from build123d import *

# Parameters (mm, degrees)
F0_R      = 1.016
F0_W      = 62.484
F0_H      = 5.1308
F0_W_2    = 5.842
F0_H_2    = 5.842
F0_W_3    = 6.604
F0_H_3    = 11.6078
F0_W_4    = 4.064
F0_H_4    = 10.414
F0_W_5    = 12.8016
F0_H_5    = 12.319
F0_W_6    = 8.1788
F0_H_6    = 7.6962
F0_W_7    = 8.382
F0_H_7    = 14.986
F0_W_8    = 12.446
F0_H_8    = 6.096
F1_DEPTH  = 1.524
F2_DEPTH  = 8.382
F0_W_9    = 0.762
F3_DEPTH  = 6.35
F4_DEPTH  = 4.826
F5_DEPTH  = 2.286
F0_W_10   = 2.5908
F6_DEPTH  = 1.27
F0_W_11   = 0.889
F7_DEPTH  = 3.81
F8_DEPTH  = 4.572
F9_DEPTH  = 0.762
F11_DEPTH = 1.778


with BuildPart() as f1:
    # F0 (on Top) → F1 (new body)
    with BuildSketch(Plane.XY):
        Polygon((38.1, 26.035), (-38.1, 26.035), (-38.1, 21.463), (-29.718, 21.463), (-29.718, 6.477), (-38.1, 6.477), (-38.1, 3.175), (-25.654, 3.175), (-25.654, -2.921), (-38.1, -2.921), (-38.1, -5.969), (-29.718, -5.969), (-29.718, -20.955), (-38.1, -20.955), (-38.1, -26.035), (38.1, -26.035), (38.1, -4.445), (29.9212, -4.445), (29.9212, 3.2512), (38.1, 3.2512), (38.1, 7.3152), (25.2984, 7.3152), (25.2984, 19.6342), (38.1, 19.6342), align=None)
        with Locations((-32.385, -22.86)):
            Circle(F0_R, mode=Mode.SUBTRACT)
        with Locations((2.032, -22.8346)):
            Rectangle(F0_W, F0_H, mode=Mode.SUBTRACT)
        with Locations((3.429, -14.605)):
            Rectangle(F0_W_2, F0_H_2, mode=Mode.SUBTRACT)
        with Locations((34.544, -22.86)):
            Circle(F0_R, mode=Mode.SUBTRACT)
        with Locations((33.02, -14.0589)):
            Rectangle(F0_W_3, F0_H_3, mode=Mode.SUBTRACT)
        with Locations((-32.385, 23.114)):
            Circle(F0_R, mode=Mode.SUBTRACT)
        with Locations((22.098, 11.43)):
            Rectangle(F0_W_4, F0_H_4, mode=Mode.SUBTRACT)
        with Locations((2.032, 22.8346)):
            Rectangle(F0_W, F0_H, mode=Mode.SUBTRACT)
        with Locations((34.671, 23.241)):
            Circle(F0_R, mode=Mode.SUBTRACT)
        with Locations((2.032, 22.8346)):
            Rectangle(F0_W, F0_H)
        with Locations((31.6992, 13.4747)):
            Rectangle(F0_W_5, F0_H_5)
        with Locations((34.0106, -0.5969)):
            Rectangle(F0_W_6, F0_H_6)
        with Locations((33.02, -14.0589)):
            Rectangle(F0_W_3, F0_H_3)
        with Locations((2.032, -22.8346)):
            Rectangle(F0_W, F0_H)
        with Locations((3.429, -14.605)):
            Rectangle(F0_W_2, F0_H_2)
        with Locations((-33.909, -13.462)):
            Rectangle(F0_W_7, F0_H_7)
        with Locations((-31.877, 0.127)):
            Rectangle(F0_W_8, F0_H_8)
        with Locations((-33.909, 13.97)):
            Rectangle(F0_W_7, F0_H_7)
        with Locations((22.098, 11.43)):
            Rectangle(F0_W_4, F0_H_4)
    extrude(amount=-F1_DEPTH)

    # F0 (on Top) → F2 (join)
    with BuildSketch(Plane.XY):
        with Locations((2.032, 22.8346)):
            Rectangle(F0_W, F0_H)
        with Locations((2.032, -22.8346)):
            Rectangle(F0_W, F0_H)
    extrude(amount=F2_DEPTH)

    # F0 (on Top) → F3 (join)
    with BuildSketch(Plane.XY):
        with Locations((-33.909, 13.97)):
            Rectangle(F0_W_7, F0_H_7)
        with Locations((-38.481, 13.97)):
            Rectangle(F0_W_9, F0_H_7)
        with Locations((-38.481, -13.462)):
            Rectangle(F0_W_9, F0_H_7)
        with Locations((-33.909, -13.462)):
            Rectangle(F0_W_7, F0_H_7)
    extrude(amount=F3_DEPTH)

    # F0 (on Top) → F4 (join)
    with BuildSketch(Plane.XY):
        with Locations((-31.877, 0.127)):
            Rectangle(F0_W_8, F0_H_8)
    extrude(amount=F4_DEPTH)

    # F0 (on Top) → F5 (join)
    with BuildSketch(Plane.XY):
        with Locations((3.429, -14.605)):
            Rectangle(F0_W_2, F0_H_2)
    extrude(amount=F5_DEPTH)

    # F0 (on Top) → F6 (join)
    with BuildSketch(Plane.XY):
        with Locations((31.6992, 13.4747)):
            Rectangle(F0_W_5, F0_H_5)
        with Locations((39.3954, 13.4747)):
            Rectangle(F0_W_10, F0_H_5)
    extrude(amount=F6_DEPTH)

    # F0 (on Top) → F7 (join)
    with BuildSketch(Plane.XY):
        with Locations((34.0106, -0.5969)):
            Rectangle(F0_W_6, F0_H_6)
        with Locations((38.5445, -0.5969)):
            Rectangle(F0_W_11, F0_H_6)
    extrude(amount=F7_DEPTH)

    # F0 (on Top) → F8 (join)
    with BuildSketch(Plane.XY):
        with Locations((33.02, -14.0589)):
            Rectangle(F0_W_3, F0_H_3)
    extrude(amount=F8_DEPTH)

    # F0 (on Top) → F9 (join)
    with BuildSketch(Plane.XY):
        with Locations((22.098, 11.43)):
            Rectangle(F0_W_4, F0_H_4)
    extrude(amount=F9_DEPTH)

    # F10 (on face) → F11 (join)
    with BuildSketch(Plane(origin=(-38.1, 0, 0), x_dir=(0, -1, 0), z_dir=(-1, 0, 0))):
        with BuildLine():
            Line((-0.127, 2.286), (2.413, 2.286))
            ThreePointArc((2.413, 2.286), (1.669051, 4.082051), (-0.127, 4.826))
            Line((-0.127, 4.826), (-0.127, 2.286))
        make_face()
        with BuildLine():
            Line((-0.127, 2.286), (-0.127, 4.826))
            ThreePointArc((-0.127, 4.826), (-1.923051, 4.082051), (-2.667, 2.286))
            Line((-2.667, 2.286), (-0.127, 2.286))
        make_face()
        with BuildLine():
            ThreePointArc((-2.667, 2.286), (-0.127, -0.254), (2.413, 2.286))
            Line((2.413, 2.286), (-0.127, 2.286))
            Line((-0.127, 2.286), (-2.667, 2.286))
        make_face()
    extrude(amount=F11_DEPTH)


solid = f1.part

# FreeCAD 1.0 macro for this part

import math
import FreeCAD as App
import Part
import Sketcher
Q = App.Units.Quantity

doc = App.newDocument("Part")
params = doc.addObject("Spreadsheet::Sheet", "Params")
for row, (alias, value) in enumerate([
    ("sketch1_diameter", "0.08 in"),
    ("sketch1_width", "3 in"),
    ("sketch1_height", "2.05 in"),
    ("pad1_length", "0.06 in"),
    ("sketch2_width", "2.46 in"),
    ("sketch2_height", "0.202 in"),
    ("pad2_length", "0.33 in"),
    ("sketch3_width", "0.36 in"),
    ("sketch3_height", "0.59 in"),
    ("pad3_length", "0.25 in"),
    ("sketch4_width", "0.49 in"),
    ("sketch4_height", "0.24 in"),
    ("pad4_length", "0.19 in"),
    ("sketch5_width", "0.23 in"),
    ("pad5_length", "0.09 in"),
    ("sketch6_width", "0.606 in"),
    ("sketch6_height", "0.485 in"),
    ("pad6_length", "0.05 in"),
    ("sketch7_width", "0.357 in"),
    ("sketch7_height", "0.303 in"),
    ("pad7_length", "0.15 in"),
    ("sketch8_width", "0.26 in"),
    ("sketch8_height", "0.457 in"),
    ("pad8_length", "0.18 in"),
    ("sketch9_width", "0.16 in"),
    ("sketch9_height", "0.41 in"),
    ("pad9_length", "0.03 in"),
    ("sketch10_radius", "0.1 in"),
    ("pad10_length", "0.07 in"),
], start=1):
    params.set(f"A{row}", alias)
    params.set(f"B{row}", "=" + value)
    params.setAlias(f"B{row}", alias)

body = doc.addObject("PartDesign::Body", "Body")

# Sketch on XY plane
sketch1 = body.newObject("Sketcher::SketchObject", "Sketch")
sketch1.AttachmentSupport = (doc.getObject("XY_Plane"), [""])
sketch1.MapMode = "FlatFace"
sketch1.addGeometry(Part.LineSegment(App.Vector(38.1, 26, 0), App.Vector(-38.1, 26, 0)), False)
sketch1.addGeometry(Part.LineSegment(App.Vector(-38.1, 26, 0), App.Vector(-38.1, -26, 0)), False)
sketch1.addGeometry(Part.LineSegment(App.Vector(-38.1, -26, 0), App.Vector(38.1, -26, 0)), False)
sketch1.addGeometry(Part.LineSegment(App.Vector(38.1, -26, 0), App.Vector(38.1, 26, 0)), False)
sketch1.addGeometry(Part.Circle(App.Vector(-32.4, -22.9, 0), App.Vector(0, 0, 1), 1), False)
sketch1.addGeometry(Part.Circle(App.Vector(34.5, -22.9, 0), App.Vector(0, 0, 1), 1), False)
sketch1.addGeometry(Part.Circle(App.Vector(-32.4, 23.1, 0), App.Vector(0, 0, 1), 1), False)
sketch1.addGeometry(Part.Circle(App.Vector(34.7, 23.2, 0), App.Vector(0, 0, 1), 1), False)
sketch1.addConstraint(Sketcher.Constraint("Coincident", 0, 2, 1, 1))
sketch1.addConstraint(Sketcher.Constraint("Coincident", 1, 2, 2, 1))
sketch1.addConstraint(Sketcher.Constraint("Coincident", 2, 2, 3, 1))
sketch1.addConstraint(Sketcher.Constraint("Coincident", 3, 2, 0, 1))
sketch1.addConstraint(Sketcher.Constraint("Horizontal", 0))
sketch1.addConstraint(Sketcher.Constraint("Vertical", 1))
sketch1.addConstraint(Sketcher.Constraint("Horizontal", 2))
sketch1.addConstraint(Sketcher.Constraint("Vertical", 3))
sketch1.addConstraint(Sketcher.Constraint("Equal", 4, 5))
sketch1.addConstraint(Sketcher.Constraint("Equal", 5, 6))
sketch1.addConstraint(Sketcher.Constraint("Equal", 6, 7))
sketch1.addConstraint(Sketcher.Constraint("Symmetric", 0, 2, 2, 2, -1, 1))
sketch1.addConstraint(Sketcher.Constraint("Horizontal", 4, 3, 5, 3))
sketch1.addConstraint(Sketcher.Constraint("Vertical", 4, 3, 6, 3))
sketch1.addConstraint(Sketcher.Constraint("Diameter", 4, Q("0.08 in")))
sketch1.addConstraint(Sketcher.Constraint("DistanceX", 0, 2, 0, 1, Q("3 in")))
sketch1.addConstraint(Sketcher.Constraint("DistanceY", 1, 2, 1, 1, Q("2.05 in")))
sketch1.addConstraint(Sketcher.Constraint("DistanceY", 4, 3, -1, 1, Q("0.9 in")))
sketch1.addConstraint(Sketcher.Constraint("DistanceX", -1, 1, 5, 3, Q("1.36 in")))
sketch1.addConstraint(Sketcher.Constraint("DistanceY", -1, 1, 6, 3, Q("0.91 in")))
sketch1.addConstraint(Sketcher.Constraint("DistanceX", 6, 3, 7, 3, Q("2.64 in")))
sketch1.addConstraint(Sketcher.Constraint("DistanceY", 7, 3, 0, 2, Q("0.11 in")))
sketch1.addConstraint(Sketcher.Constraint("DistanceX", 4, 3, -1, 1, Q("1.275 in")))
sketch1.setExpression("Constraints[14]", "Params.sketch1_diameter")
sketch1.setExpression("Constraints[15]", "Params.sketch1_width")
sketch1.setExpression("Constraints[16]", "Params.sketch1_height")
pad1 = body.newObject("PartDesign::Pad", "Pad")
pad1.Profile = sketch1
pad1.setExpression("Length", "Params.pad1_length")
pad1.Reversed = True

# Sketch on XY plane
sketch2 = body.newObject("Sketcher::SketchObject", "Sketch001")
sketch2.AttachmentSupport = (doc.getObject("XY_Plane"), [""])
sketch2.MapMode = "FlatFace"
sketch2.addGeometry(Part.LineSegment(App.Vector(-29, 25, 0), App.Vector(-29, 20, 0)), False)
sketch2.addGeometry(Part.LineSegment(App.Vector(-29, 20, 0), App.Vector(33, 20, 0)), False)
sketch2.addGeometry(Part.LineSegment(App.Vector(33, 20, 0), App.Vector(33, 25, 0)), False)
sketch2.addGeometry(Part.LineSegment(App.Vector(33, 25, 0), App.Vector(-29, 25, 0)), False)
sketch2.addGeometry(Part.LineSegment(App.Vector(-29, -20, 0), App.Vector(-29, -25, 0)), False)
sketch2.addGeometry(Part.LineSegment(App.Vector(-29, -25, 0), App.Vector(33, -25, 0)), False)
sketch2.addGeometry(Part.LineSegment(App.Vector(33, -25, 0), App.Vector(33, -20, 0)), False)
sketch2.addGeometry(Part.LineSegment(App.Vector(33, -20, 0), App.Vector(-29, -20, 0)), False)
sketch2.addConstraint(Sketcher.Constraint("Coincident", 0, 2, 1, 1))
sketch2.addConstraint(Sketcher.Constraint("Coincident", 1, 2, 2, 1))
sketch2.addConstraint(Sketcher.Constraint("Coincident", 2, 2, 3, 1))
sketch2.addConstraint(Sketcher.Constraint("Coincident", 3, 2, 0, 1))
sketch2.addConstraint(Sketcher.Constraint("Coincident", 4, 2, 5, 1))
sketch2.addConstraint(Sketcher.Constraint("Coincident", 5, 2, 6, 1))
sketch2.addConstraint(Sketcher.Constraint("Coincident", 6, 2, 7, 1))
sketch2.addConstraint(Sketcher.Constraint("Coincident", 7, 2, 4, 1))
sketch2.addConstraint(Sketcher.Constraint("Vertical", 0))
sketch2.addConstraint(Sketcher.Constraint("Horizontal", 1))
sketch2.addConstraint(Sketcher.Constraint("Vertical", 2))
sketch2.addConstraint(Sketcher.Constraint("Horizontal", 3))
sketch2.addConstraint(Sketcher.Constraint("Vertical", 4))
sketch2.addConstraint(Sketcher.Constraint("Horizontal", 5))
sketch2.addConstraint(Sketcher.Constraint("Vertical", 6))
sketch2.addConstraint(Sketcher.Constraint("Horizontal", 7))
sketch2.addConstraint(Sketcher.Constraint("Symmetric", 3, 2, 4, 2, -1))
sketch2.addConstraint(Sketcher.Constraint("Symmetric", 1, 2, 6, 2, -1))
sketch2.addConstraint(Sketcher.Constraint("DistanceY", -1, 1, 2, 2, Q("1 in")))
sketch2.addConstraint(Sketcher.Constraint("DistanceX", 1, 1, 1, 2, Q("2.46 in")))
sketch2.addConstraint(Sketcher.Constraint("DistanceY", 0, 2, 0, 1, Q("0.202 in")))
sketch2.addConstraint(Sketcher.Constraint("DistanceX", 0, 2, -1, 1, Q("1.15 in")))
sketch2.setExpression("Constraints[19]", "Params.sketch2_width")
sketch2.setExpression("Constraints[20]", "Params.sketch2_height")
pad2 = body.newObject("PartDesign::Pad", "Pad001")
pad2.Profile = sketch2
pad2.setExpression("Length", "Params.pad2_length")

# Sketch on XY plane
sketch3 = body.newObject("Sketcher::SketchObject", "Sketch002")
sketch3.AttachmentSupport = (doc.getObject("XY_Plane"), [""])
sketch3.MapMode = "FlatFace"
sketch3.addGeometry(Part.LineSegment(App.Vector(-30, 6, 0), App.Vector(-30, 21, 0)), False)
sketch3.addGeometry(Part.LineSegment(App.Vector(-30, 21, 0), App.Vector(-39, 21, 0)), False)
sketch3.addGeometry(Part.LineSegment(App.Vector(-39, 21, 0), App.Vector(-39, 6, 0)), False)
sketch3.addGeometry(Part.LineSegment(App.Vector(-39, 6, 0), App.Vector(-30, 6, 0)), False)
sketch3.addGeometry(Part.LineSegment(App.Vector(-39, -6, 0), App.Vector(-39, -21, 0)), False)
sketch3.addGeometry(Part.LineSegment(App.Vector(-39, -21, 0), App.Vector(-30, -21, 0)), False)
sketch3.addGeometry(Part.LineSegment(App.Vector(-30, -21, 0), App.Vector(-30, -6, 0)), False)
sketch3.addGeometry(Part.LineSegment(App.Vector(-30, -6, 0), App.Vector(-39, -6, 0)), False)
sketch3.addConstraint(Sketcher.Constraint("Coincident", 0, 2, 1, 1))
sketch3.addConstraint(Sketcher.Constraint("Coincident", 1, 2, 2, 1))
sketch3.addConstraint(Sketcher.Constraint("Coincident", 2, 2, 3, 1))
sketch3.addConstraint(Sketcher.Constraint("Coincident", 3, 2, 0, 1))
sketch3.addConstraint(Sketcher.Constraint("Coincident", 4, 2, 5, 1))
sketch3.addConstraint(Sketcher.Constraint("Coincident", 5, 2, 6, 1))
sketch3.addConstraint(Sketcher.Constraint("Coincident", 6, 2, 7, 1))
sketch3.addConstraint(Sketcher.Constraint("Coincident", 7, 2, 4, 1))
sketch3.addConstraint(Sketcher.Constraint("Vertical", 0))
sketch3.addConstraint(Sketcher.Constraint("Horizontal", 1))
sketch3.addConstraint(Sketcher.Constraint("Vertical", 2))
sketch3.addConstraint(Sketcher.Constraint("Horizontal", 3))
sketch3.addConstraint(Sketcher.Constraint("Vertical", 4))
sketch3.addConstraint(Sketcher.Constraint("Horizontal", 5))
sketch3.addConstraint(Sketcher.Constraint("Vertical", 6))
sketch3.addConstraint(Sketcher.Constraint("Horizontal", 7))
sketch3.addConstraint(Sketcher.Constraint("Vertical", 2, 2, 4, 2))
sketch3.addConstraint(Sketcher.Constraint("Vertical", 3, 2, 5, 2))
sketch3.addConstraint(Sketcher.Constraint("Equal", 2, 4))
sketch3.addConstraint(Sketcher.Constraint("DistanceX", 1, 2, 1, 1, Q("0.36 in")))
sketch3.addConstraint(Sketcher.Constraint("DistanceY", 0, 1, 0, 2, Q("0.59 in")))
sketch3.addConstraint(Sketcher.Constraint("DistanceX", 0, 2, -1, 1, Q("1.17 in")))
sketch3.addConstraint(Sketcher.Constraint("DistanceY", 4, 2, 2, 2, Q("1.08 in")))
sketch3.addConstraint(Sketcher.Constraint("DistanceY", -1, 1, 0, 2, Q("0.845 in")))
sketch3.setExpression("Constraints[19]", "Params.sketch3_width")
sketch3.setExpression("Constraints[20]", "Params.sketch3_height")
pad3 = body.newObject("PartDesign::Pad", "Pad002")
pad3.Profile = sketch3
pad3.setExpression("Length", "Params.pad3_length")

# Sketch on XY plane
sketch4 = body.newObject("Sketcher::SketchObject", "Sketch003")
sketch4.AttachmentSupport = (doc.getObject("XY_Plane"), [""])
sketch4.MapMode = "FlatFace"
sketch4.addGeometry(Part.LineSegment(App.Vector(-38, 3, 0), App.Vector(-38, -3, 0)), False)
sketch4.addGeometry(Part.LineSegment(App.Vector(-38, -3, 0), App.Vector(-26, -3, 0)), False)
sketch4.addGeometry(Part.LineSegment(App.Vector(-26, -3, 0), App.Vector(-26, 3, 0)), False)
sketch4.addGeometry(Part.LineSegment(App.Vector(-26, 3, 0), App.Vector(-38, 3, 0)), False)
sketch4.addConstraint(Sketcher.Constraint("Coincident", 0, 2, 1, 1))
sketch4.addConstraint(Sketcher.Constraint("Coincident", 1, 2, 2, 1))
sketch4.addConstraint(Sketcher.Constraint("Coincident", 2, 2, 3, 1))
sketch4.addConstraint(Sketcher.Constraint("Coincident", 3, 2, 0, 1))
sketch4.addConstraint(Sketcher.Constraint("Vertical", 0))
sketch4.addConstraint(Sketcher.Constraint("Horizontal", 1))
sketch4.addConstraint(Sketcher.Constraint("Vertical", 2))
sketch4.addConstraint(Sketcher.Constraint("Horizontal", 3))
sketch4.addConstraint(Sketcher.Constraint("DistanceX", 1, 1, 1, 2, Q("0.49 in")))
sketch4.addConstraint(Sketcher.Constraint("DistanceY", 0, 2, 0, 1, Q("0.24 in")))
sketch4.addConstraint(Sketcher.Constraint("DistanceX", 0, 2, -1, 1, Q("1.5 in")))
sketch4.addConstraint(Sketcher.Constraint("DistanceY", 0, 2, -1, 1, Q("0.115 in")))
sketch4.setExpression("Constraints[8]", "Params.sketch4_width")
sketch4.setExpression("Constraints[9]", "Params.sketch4_height")
pad4 = body.newObject("PartDesign::Pad", "Pad003")
pad4.Profile = sketch4
pad4.setExpression("Length", "Params.pad4_length")

# Sketch on XY plane
sketch5 = body.newObject("Sketcher::SketchObject", "Sketch004")
sketch5.AttachmentSupport = (doc.getObject("XY_Plane"), [""])
sketch5.MapMode = "FlatFace"
sketch5.addGeometry(Part.LineSegment(App.Vector(1, -12, 0), App.Vector(1, -18, 0)), False)
sketch5.addGeometry(Part.LineSegment(App.Vector(1, -18, 0), App.Vector(6, -18, 0)), False)
sketch5.addGeometry(Part.LineSegment(App.Vector(6, -18, 0), App.Vector(6, -12, 0)), False)
sketch5.addGeometry(Part.LineSegment(App.Vector(6, -12, 0), App.Vector(1, -12, 0)), False)
sketch5.addConstraint(Sketcher.Constraint("Coincident", 0, 2, 1, 1))
sketch5.addConstraint(Sketcher.Constraint("Coincident", 1, 2, 2, 1))
sketch5.addConstraint(Sketcher.Constraint("Coincident", 2, 2, 3, 1))
sketch5.addConstraint(Sketcher.Constraint("Coincident", 3, 2, 0, 1))
sketch5.addConstraint(Sketcher.Constraint("Vertical", 0))
sketch5.addConstraint(Sketcher.Constraint("Horizontal", 1))
sketch5.addConstraint(Sketcher.Constraint("Vertical", 2))
sketch5.addConstraint(Sketcher.Constraint("Horizontal", 3))
sketch5.addConstraint(Sketcher.Constraint("Equal", 3, 0))
sketch5.addConstraint(Sketcher.Constraint("DistanceX", 1, 1, 1, 2, Q("0.23 in")))
sketch5.addConstraint(Sketcher.Constraint("DistanceX", -1, 1, 0, 2, Q("0.02 in")))
sketch5.addConstraint(Sketcher.Constraint("DistanceY", 0, 2, -1, 1, Q("0.69 in")))
sketch5.setExpression("Constraints[9]", "Params.sketch5_width")
pad5 = body.newObject("PartDesign::Pad", "Pad004")
pad5.Profile = sketch5
pad5.setExpression("Length", "Params.pad5_length")

# Sketch on XY plane
sketch6 = body.newObject("Sketcher::SketchObject", "Sketch005")
sketch6.AttachmentSupport = (doc.getObject("XY_Plane"), [""])
sketch6.MapMode = "FlatFace"
sketch6.addGeometry(Part.LineSegment(App.Vector(25, 20, 0), App.Vector(25, 7, 0)), False)
sketch6.addGeometry(Part.LineSegment(App.Vector(25, 7, 0), App.Vector(41, 7, 0)), False)
sketch6.addGeometry(Part.LineSegment(App.Vector(41, 7, 0), App.Vector(41, 20, 0)), False)
sketch6.addGeometry(Part.LineSegment(App.Vector(41, 20, 0), App.Vector(25, 20, 0)), False)
sketch6.addConstraint(Sketcher.Constraint("Coincident", 0, 2, 1, 1))
sketch6.addConstraint(Sketcher.Constraint("Coincident", 1, 2, 2, 1))
sketch6.addConstraint(Sketcher.Constraint("Coincident", 2, 2, 3, 1))
sketch6.addConstraint(Sketcher.Constraint("Coincident", 3, 2, 0, 1))
sketch6.addConstraint(Sketcher.Constraint("Vertical", 0))
sketch6.addConstraint(Sketcher.Constraint("Horizontal", 1))
sketch6.addConstraint(Sketcher.Constraint("Vertical", 2))
sketch6.addConstraint(Sketcher.Constraint("Horizontal", 3))
sketch6.addConstraint(Sketcher.Constraint("DistanceX", 1, 1, 1, 2, Q("0.606 in")))
sketch6.addConstraint(Sketcher.Constraint("DistanceY", 0, 2, 0, 1, Q("0.485 in")))
sketch6.addConstraint(Sketcher.Constraint("DistanceX", -1, 1, 0, 2, Q("0.996 in")))
sketch6.addConstraint(Sketcher.Constraint("DistanceY", -1, 1, 0, 2, Q("0.288 in")))
sketch6.setExpression("Constraints[8]", "Params.sketch6_width")
sketch6.setExpression("Constraints[9]", "Params.sketch6_height")
pad6 = body.newObject("PartDesign::Pad", "Pad005")
pad6.Profile = sketch6
pad6.setExpression("Length", "Params.pad6_length")

# Sketch on XY plane
sketch7 = body.newObject("Sketcher::SketchObject", "Sketch006")
sketch7.AttachmentSupport = (doc.getObject("XY_Plane"), [""])
sketch7.MapMode = "FlatFace"
sketch7.addGeometry(Part.LineSegment(App.Vector(30, 3, 0), App.Vector(30, -4, 0)), False)
sketch7.addGeometry(Part.LineSegment(App.Vector(30, -4, 0), App.Vector(39, -4, 0)), False)
sketch7.addGeometry(Part.LineSegment(App.Vector(39, -4, 0), App.Vector(39, 3, 0)), False)
sketch7.addGeometry(Part.LineSegment(App.Vector(39, 3, 0), App.Vector(30, 3, 0)), False)
sketch7.addConstraint(Sketcher.Constraint("Coincident", 0, 2, 1, 1))
sketch7.addConstraint(Sketcher.Constraint("Coincident", 1, 2, 2, 1))
sketch7.addConstraint(Sketcher.Constraint("Coincident", 2, 2, 3, 1))
sketch7.addConstraint(Sketcher.Constraint("Coincident", 3, 2, 0, 1))
sketch7.addConstraint(Sketcher.Constraint("Vertical", 0))
sketch7.addConstraint(Sketcher.Constraint("Horizontal", 1))
sketch7.addConstraint(Sketcher.Constraint("Vertical", 2))
sketch7.addConstraint(Sketcher.Constraint("Horizontal", 3))
sketch7.addConstraint(Sketcher.Constraint("DistanceX", 1, 1, 1, 2, Q("0.357 in")))
sketch7.addConstraint(Sketcher.Constraint("DistanceY", 0, 2, 0, 1, Q("0.303 in")))
sketch7.addConstraint(Sketcher.Constraint("DistanceX", -1, 1, 0, 2, Q("1.178 in")))
sketch7.addConstraint(Sketcher.Constraint("DistanceY", 0, 2, -1, 1, Q("0.175 in")))
sketch7.setExpression("Constraints[8]", "Params.sketch7_width")
sketch7.setExpression("Constraints[9]", "Params.sketch7_height")
pad7 = body.newObject("PartDesign::Pad", "Pad006")
pad7.Profile = sketch7
pad7.setExpression("Length", "Params.pad7_length")

# Sketch on XY plane
sketch8 = body.newObject("Sketcher::SketchObject", "Sketch007")
sketch8.AttachmentSupport = (doc.getObject("XY_Plane"), [""])
sketch8.MapMode = "FlatFace"
sketch8.addGeometry(Part.LineSegment(App.Vector(30, -8, 0), App.Vector(30, -20, 0)), False)
sketch8.addGeometry(Part.LineSegment(App.Vector(30, -20, 0), App.Vector(36, -20, 0)), False)
sketch8.addGeometry(Part.LineSegment(App.Vector(36, -20, 0), App.Vector(36, -8, 0)), False)
sketch8.addGeometry(Part.LineSegment(App.Vector(36, -8, 0), App.Vector(30, -8, 0)), False)
sketch8.addConstraint(Sketcher.Constraint("Coincident", 0, 2, 1, 1))
sketch8.addConstraint(Sketcher.Constraint("Coincident", 1, 2, 2, 1))
sketch8.addConstraint(Sketcher.Constraint("Coincident", 2, 2, 3, 1))
sketch8.addConstraint(Sketcher.Constraint("Coincident", 3, 2, 0, 1))
sketch8.addConstraint(Sketcher.Constraint("Vertical", 0))
sketch8.addConstraint(Sketcher.Constraint("Horizontal", 1))
sketch8.addConstraint(Sketcher.Constraint("Vertical", 2))
sketch8.addConstraint(Sketcher.Constraint("Horizontal", 3))
sketch8.addConstraint(Sketcher.Constraint("DistanceX", 1, 1, 1, 2, Q("0.26 in")))
sketch8.addConstraint(Sketcher.Constraint("DistanceY", 0, 2, 0, 1, Q("0.457 in")))
sketch8.addConstraint(Sketcher.Constraint("DistanceX", -1, 1, 0, 2, Q("1.17 in")))
sketch8.addConstraint(Sketcher.Constraint("DistanceY", 0, 2, -1, 1, Q("0.782 in")))
sketch8.setExpression("Constraints[8]", "Params.sketch8_width")
sketch8.setExpression("Constraints[9]", "Params.sketch8_height")
pad8 = body.newObject("PartDesign::Pad", "Pad007")
pad8.Profile = sketch8
pad8.setExpression("Length", "Params.pad8_length")

# Sketch on XY plane
sketch9 = body.newObject("Sketcher::SketchObject", "Sketch008")
sketch9.AttachmentSupport = (doc.getObject("XY_Plane"), [""])
sketch9.MapMode = "FlatFace"
sketch9.addGeometry(Part.LineSegment(App.Vector(20.1, 16.6, 0), App.Vector(20.1, 6.2, 0)), False)
sketch9.addGeometry(Part.LineSegment(App.Vector(20.1, 6.2, 0), App.Vector(24.1, 6.2, 0)), False)
sketch9.addGeometry(Part.LineSegment(App.Vector(24.1, 6.2, 0), App.Vector(24.1, 16.6, 0)), False)
sketch9.addGeometry(Part.LineSegment(App.Vector(24.1, 16.6, 0), App.Vector(20.1, 16.6, 0)), False)
sketch9.addConstraint(Sketcher.Constraint("Coincident", 0, 2, 1, 1))
sketch9.addConstraint(Sketcher.Constraint("Coincident", 1, 2, 2, 1))
sketch9.addConstraint(Sketcher.Constraint("Coincident", 2, 2, 3, 1))
sketch9.addConstraint(Sketcher.Constraint("Coincident", 3, 2, 0, 1))
sketch9.addConstraint(Sketcher.Constraint("Vertical", 0))
sketch9.addConstraint(Sketcher.Constraint("Horizontal", 1))
sketch9.addConstraint(Sketcher.Constraint("Vertical", 2))
sketch9.addConstraint(Sketcher.Constraint("Horizontal", 3))
sketch9.addConstraint(Sketcher.Constraint("DistanceX", 1, 1, 1, 2, Q("0.16 in")))
sketch9.addConstraint(Sketcher.Constraint("DistanceY", 0, 2, 0, 1, Q("0.41 in")))
sketch9.addConstraint(Sketcher.Constraint("DistanceX", -1, 1, 0, 2, Q("0.79 in")))
sketch9.addConstraint(Sketcher.Constraint("DistanceY", -1, 1, 0, 2, Q("0.245 in")))
sketch9.setExpression("Constraints[8]", "Params.sketch9_width")
sketch9.setExpression("Constraints[9]", "Params.sketch9_height")
pad9 = body.newObject("PartDesign::Pad", "Pad008")
pad9.Profile = sketch9
pad9.setExpression("Length", "Params.pad9_length")

# Sketch on YZ plane
sketch10 = body.newObject("Sketcher::SketchObject", "Sketch009")
sketch10.AttachmentSupport = (doc.getObject("YZ_Plane"), [""])
sketch10.MapMode = "FlatFace"
sketch10.AttachmentOffset = App.Placement(App.Vector(0, 0, -1.5 * 25.4), App.Rotation())
sketch10.addGeometry(Part.ArcOfCircle(Part.Circle(App.Vector(0.1, 2.3, 0), App.Vector(0, 0, 1), 2.5), math.radians(90), math.radians(180)), False)
sketch10.addGeometry(Part.ArcOfCircle(Part.Circle(App.Vector(0.1, 2.3, 0), App.Vector(0, 0, 1), 2.5), math.radians(0), math.radians(90)), False)
sketch10.addGeometry(Part.ArcOfCircle(Part.Circle(App.Vector(0.1, 2.3, 0), App.Vector(0, 0, 1), 2.5), math.radians(180), math.radians(360)), False)
sketch10.addConstraint(Sketcher.Constraint("Tangent", 0, 1, 1, 2))
sketch10.addConstraint(Sketcher.Constraint("Tangent", 1, 1, 2, 2))
sketch10.addConstraint(Sketcher.Constraint("Tangent", 2, 1, 0, 2))
sketch10.addConstraint(Sketcher.Constraint("Horizontal", 2, 3, 1, 1))
sketch10.addConstraint(Sketcher.Constraint("Horizontal", 1, 1, 2, 1))
sketch10.addConstraint(Sketcher.Constraint("Vertical", 2, 3, 0, 1))
sketch10.addConstraint(Sketcher.Constraint("Radius", 0, Q("0.1 in")))
sketch10.addConstraint(Sketcher.Constraint("DistanceY", -1, 1, 0, 3, Q("0.09 in")))
sketch10.addConstraint(Sketcher.Constraint("DistanceX", -1, 1, 0, 3, Q("0.005 in")))
sketch10.setExpression("Constraints[6]", "Params.sketch10_radius")
pad10 = body.newObject("PartDesign::Pad", "Pad009")
pad10.Profile = sketch10
pad10.setExpression("Length", "Params.pad10_length")
pad10.Reversed = True

doc.recompute()
